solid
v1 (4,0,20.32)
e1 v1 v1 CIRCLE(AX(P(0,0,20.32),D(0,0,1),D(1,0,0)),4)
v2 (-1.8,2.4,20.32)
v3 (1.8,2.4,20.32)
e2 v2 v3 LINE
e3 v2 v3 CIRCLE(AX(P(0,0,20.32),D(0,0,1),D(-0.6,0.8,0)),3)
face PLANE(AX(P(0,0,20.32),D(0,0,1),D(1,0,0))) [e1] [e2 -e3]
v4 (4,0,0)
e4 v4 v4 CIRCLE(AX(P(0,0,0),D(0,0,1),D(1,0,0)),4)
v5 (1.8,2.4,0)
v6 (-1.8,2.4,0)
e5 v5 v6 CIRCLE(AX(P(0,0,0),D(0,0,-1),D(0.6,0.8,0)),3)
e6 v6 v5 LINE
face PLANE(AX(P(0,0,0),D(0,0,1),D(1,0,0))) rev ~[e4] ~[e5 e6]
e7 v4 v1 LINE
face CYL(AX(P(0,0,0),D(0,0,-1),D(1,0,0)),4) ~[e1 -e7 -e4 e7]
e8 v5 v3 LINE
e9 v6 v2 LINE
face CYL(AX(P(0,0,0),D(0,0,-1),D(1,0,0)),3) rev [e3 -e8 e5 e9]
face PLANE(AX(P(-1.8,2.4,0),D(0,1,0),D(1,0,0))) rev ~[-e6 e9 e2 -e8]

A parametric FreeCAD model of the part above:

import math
import FreeCAD as App
import Part
import Sketcher

doc = App.newDocument("Part")
body = doc.addObject("PartDesign::Body", "Body")

# Sketch on XY plane
sketch1 = doc.addObject("Sketcher::SketchObject", "Sketch")
body.addObject(sketch1)
sketch1.AttachmentSupport = (doc.XY_Plane, [""])
sketch1.MapMode = "FlatFace"
sketch1.addGeometry(Part.Circle(App.Vector(0, 0, 0), App.Vector(0, 0, 1), 4), False)
sketch1.addGeometry(Part.LineSegment(App.Vector(-1.8, 2.4, 0), App.Vector(1.8, 2.4, 0)), False)
sketch1.addGeometry(Part.ArcOfCircle(Part.Circle(App.Vector(0, 0, 0), App.Vector(0, 0, 1), 3), math.radians(127), math.radians(413)), False)
sketch1.addConstraint(Sketcher.Constraint("Coincident", 1, 1, 2, 1))
sketch1.addConstraint(Sketcher.Constraint("Coincident", 2, 2, 1, 2))
sketch1.addConstraint(Sketcher.Constraint("Horizontal", 1))
sketch1.addConstraint(Sketcher.Constraint("Coincident", 0, 3, -1, 1))
sketch1.addConstraint(Sketcher.Constraint("Coincident", 2, 3, -1, 1))
sketch1.addConstraint(Sketcher.Constraint("Diameter", 0, 8.0))
sketch1.addConstraint(Sketcher.Constraint("Radius", 2, 3.0))
sketch1.addConstraint(Sketcher.Constraint("DistanceX", 1, 1, 1, 2, 3.6))
pad1 = doc.addObject("PartDesign::Pad", "Pad")
body.addObject(pad1)
pad1.Profile = sketch1
pad1.Length = 20.32

doc.recompute()
